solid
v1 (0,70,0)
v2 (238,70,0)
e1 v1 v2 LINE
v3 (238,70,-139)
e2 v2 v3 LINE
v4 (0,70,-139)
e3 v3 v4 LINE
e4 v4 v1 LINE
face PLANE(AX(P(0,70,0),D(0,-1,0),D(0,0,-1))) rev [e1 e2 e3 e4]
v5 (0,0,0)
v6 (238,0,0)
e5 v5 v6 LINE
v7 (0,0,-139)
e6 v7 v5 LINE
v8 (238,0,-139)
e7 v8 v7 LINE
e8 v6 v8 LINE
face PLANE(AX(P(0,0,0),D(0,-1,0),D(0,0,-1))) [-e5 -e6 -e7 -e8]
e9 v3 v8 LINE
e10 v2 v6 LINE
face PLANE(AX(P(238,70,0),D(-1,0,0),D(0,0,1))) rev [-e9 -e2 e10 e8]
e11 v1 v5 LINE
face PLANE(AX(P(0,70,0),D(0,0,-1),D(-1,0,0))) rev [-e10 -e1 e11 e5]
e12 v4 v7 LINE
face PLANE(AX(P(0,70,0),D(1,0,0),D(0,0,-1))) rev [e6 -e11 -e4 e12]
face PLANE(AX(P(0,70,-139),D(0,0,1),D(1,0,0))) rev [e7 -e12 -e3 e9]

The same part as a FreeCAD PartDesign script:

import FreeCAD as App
import Part
import Sketcher
from FreeCAD import Vector
Q = App.Units.Quantity


def add_polygon(sketch, points):
    """Adds a closed chain of lines whose ends are joined by coincident constraints."""
    first, n = sketch.GeometryCount, len(points)
    for a, b in zip(points, points[1:] + points[:1]):
        sketch.addGeometry(Part.LineSegment(App.Vector(*a, 0), App.Vector(*b, 0)), False)
    for i in range(n):
        sketch.addConstraint(Sketcher.Constraint("Coincident", first + i, 2, first + (i + 1) % n, 1))

doc = App.newDocument("Part")
body = doc.addObject("PartDesign::Body", "Body")

# Sketch on XZ plane
sketch1 = body.newObject("Sketcher::SketchObject", "Sketch")
sketch1.AttachmentSupport = (doc.getObject("XZ_Plane"), [""])
sketch1.MapMode = "FlatFace"
add_polygon(sketch1, [(0, -139), (0, 0), (238, 0), (238, -139)])  # lines 0-3
sketch1.addConstraint(Sketcher.Constraint("Vertical", 0))
sketch1.addConstraint(Sketcher.Constraint("Horizontal", 1))
sketch1.addConstraint(Sketcher.Constraint("Vertical", 2))
sketch1.addConstraint(Sketcher.Constraint("Horizontal", 3))
sketch1.addConstraint(Sketcher.Constraint("Coincident", 0, 2, -1, 1))
sketch1.addConstraint(Sketcher.Constraint("DistanceX", 1, 1, 1, 2, Q("238 mm")))
sketch1.addConstraint(Sketcher.Constraint("DistanceY", 0, 1, 0, 2, Q("139 mm")))
pad1 = body.newObject("PartDesign::Pad", "Pad")
pad1.Profile = sketch1
pad1.Length = 70
pad1.Reversed = True

doc.recompute()
